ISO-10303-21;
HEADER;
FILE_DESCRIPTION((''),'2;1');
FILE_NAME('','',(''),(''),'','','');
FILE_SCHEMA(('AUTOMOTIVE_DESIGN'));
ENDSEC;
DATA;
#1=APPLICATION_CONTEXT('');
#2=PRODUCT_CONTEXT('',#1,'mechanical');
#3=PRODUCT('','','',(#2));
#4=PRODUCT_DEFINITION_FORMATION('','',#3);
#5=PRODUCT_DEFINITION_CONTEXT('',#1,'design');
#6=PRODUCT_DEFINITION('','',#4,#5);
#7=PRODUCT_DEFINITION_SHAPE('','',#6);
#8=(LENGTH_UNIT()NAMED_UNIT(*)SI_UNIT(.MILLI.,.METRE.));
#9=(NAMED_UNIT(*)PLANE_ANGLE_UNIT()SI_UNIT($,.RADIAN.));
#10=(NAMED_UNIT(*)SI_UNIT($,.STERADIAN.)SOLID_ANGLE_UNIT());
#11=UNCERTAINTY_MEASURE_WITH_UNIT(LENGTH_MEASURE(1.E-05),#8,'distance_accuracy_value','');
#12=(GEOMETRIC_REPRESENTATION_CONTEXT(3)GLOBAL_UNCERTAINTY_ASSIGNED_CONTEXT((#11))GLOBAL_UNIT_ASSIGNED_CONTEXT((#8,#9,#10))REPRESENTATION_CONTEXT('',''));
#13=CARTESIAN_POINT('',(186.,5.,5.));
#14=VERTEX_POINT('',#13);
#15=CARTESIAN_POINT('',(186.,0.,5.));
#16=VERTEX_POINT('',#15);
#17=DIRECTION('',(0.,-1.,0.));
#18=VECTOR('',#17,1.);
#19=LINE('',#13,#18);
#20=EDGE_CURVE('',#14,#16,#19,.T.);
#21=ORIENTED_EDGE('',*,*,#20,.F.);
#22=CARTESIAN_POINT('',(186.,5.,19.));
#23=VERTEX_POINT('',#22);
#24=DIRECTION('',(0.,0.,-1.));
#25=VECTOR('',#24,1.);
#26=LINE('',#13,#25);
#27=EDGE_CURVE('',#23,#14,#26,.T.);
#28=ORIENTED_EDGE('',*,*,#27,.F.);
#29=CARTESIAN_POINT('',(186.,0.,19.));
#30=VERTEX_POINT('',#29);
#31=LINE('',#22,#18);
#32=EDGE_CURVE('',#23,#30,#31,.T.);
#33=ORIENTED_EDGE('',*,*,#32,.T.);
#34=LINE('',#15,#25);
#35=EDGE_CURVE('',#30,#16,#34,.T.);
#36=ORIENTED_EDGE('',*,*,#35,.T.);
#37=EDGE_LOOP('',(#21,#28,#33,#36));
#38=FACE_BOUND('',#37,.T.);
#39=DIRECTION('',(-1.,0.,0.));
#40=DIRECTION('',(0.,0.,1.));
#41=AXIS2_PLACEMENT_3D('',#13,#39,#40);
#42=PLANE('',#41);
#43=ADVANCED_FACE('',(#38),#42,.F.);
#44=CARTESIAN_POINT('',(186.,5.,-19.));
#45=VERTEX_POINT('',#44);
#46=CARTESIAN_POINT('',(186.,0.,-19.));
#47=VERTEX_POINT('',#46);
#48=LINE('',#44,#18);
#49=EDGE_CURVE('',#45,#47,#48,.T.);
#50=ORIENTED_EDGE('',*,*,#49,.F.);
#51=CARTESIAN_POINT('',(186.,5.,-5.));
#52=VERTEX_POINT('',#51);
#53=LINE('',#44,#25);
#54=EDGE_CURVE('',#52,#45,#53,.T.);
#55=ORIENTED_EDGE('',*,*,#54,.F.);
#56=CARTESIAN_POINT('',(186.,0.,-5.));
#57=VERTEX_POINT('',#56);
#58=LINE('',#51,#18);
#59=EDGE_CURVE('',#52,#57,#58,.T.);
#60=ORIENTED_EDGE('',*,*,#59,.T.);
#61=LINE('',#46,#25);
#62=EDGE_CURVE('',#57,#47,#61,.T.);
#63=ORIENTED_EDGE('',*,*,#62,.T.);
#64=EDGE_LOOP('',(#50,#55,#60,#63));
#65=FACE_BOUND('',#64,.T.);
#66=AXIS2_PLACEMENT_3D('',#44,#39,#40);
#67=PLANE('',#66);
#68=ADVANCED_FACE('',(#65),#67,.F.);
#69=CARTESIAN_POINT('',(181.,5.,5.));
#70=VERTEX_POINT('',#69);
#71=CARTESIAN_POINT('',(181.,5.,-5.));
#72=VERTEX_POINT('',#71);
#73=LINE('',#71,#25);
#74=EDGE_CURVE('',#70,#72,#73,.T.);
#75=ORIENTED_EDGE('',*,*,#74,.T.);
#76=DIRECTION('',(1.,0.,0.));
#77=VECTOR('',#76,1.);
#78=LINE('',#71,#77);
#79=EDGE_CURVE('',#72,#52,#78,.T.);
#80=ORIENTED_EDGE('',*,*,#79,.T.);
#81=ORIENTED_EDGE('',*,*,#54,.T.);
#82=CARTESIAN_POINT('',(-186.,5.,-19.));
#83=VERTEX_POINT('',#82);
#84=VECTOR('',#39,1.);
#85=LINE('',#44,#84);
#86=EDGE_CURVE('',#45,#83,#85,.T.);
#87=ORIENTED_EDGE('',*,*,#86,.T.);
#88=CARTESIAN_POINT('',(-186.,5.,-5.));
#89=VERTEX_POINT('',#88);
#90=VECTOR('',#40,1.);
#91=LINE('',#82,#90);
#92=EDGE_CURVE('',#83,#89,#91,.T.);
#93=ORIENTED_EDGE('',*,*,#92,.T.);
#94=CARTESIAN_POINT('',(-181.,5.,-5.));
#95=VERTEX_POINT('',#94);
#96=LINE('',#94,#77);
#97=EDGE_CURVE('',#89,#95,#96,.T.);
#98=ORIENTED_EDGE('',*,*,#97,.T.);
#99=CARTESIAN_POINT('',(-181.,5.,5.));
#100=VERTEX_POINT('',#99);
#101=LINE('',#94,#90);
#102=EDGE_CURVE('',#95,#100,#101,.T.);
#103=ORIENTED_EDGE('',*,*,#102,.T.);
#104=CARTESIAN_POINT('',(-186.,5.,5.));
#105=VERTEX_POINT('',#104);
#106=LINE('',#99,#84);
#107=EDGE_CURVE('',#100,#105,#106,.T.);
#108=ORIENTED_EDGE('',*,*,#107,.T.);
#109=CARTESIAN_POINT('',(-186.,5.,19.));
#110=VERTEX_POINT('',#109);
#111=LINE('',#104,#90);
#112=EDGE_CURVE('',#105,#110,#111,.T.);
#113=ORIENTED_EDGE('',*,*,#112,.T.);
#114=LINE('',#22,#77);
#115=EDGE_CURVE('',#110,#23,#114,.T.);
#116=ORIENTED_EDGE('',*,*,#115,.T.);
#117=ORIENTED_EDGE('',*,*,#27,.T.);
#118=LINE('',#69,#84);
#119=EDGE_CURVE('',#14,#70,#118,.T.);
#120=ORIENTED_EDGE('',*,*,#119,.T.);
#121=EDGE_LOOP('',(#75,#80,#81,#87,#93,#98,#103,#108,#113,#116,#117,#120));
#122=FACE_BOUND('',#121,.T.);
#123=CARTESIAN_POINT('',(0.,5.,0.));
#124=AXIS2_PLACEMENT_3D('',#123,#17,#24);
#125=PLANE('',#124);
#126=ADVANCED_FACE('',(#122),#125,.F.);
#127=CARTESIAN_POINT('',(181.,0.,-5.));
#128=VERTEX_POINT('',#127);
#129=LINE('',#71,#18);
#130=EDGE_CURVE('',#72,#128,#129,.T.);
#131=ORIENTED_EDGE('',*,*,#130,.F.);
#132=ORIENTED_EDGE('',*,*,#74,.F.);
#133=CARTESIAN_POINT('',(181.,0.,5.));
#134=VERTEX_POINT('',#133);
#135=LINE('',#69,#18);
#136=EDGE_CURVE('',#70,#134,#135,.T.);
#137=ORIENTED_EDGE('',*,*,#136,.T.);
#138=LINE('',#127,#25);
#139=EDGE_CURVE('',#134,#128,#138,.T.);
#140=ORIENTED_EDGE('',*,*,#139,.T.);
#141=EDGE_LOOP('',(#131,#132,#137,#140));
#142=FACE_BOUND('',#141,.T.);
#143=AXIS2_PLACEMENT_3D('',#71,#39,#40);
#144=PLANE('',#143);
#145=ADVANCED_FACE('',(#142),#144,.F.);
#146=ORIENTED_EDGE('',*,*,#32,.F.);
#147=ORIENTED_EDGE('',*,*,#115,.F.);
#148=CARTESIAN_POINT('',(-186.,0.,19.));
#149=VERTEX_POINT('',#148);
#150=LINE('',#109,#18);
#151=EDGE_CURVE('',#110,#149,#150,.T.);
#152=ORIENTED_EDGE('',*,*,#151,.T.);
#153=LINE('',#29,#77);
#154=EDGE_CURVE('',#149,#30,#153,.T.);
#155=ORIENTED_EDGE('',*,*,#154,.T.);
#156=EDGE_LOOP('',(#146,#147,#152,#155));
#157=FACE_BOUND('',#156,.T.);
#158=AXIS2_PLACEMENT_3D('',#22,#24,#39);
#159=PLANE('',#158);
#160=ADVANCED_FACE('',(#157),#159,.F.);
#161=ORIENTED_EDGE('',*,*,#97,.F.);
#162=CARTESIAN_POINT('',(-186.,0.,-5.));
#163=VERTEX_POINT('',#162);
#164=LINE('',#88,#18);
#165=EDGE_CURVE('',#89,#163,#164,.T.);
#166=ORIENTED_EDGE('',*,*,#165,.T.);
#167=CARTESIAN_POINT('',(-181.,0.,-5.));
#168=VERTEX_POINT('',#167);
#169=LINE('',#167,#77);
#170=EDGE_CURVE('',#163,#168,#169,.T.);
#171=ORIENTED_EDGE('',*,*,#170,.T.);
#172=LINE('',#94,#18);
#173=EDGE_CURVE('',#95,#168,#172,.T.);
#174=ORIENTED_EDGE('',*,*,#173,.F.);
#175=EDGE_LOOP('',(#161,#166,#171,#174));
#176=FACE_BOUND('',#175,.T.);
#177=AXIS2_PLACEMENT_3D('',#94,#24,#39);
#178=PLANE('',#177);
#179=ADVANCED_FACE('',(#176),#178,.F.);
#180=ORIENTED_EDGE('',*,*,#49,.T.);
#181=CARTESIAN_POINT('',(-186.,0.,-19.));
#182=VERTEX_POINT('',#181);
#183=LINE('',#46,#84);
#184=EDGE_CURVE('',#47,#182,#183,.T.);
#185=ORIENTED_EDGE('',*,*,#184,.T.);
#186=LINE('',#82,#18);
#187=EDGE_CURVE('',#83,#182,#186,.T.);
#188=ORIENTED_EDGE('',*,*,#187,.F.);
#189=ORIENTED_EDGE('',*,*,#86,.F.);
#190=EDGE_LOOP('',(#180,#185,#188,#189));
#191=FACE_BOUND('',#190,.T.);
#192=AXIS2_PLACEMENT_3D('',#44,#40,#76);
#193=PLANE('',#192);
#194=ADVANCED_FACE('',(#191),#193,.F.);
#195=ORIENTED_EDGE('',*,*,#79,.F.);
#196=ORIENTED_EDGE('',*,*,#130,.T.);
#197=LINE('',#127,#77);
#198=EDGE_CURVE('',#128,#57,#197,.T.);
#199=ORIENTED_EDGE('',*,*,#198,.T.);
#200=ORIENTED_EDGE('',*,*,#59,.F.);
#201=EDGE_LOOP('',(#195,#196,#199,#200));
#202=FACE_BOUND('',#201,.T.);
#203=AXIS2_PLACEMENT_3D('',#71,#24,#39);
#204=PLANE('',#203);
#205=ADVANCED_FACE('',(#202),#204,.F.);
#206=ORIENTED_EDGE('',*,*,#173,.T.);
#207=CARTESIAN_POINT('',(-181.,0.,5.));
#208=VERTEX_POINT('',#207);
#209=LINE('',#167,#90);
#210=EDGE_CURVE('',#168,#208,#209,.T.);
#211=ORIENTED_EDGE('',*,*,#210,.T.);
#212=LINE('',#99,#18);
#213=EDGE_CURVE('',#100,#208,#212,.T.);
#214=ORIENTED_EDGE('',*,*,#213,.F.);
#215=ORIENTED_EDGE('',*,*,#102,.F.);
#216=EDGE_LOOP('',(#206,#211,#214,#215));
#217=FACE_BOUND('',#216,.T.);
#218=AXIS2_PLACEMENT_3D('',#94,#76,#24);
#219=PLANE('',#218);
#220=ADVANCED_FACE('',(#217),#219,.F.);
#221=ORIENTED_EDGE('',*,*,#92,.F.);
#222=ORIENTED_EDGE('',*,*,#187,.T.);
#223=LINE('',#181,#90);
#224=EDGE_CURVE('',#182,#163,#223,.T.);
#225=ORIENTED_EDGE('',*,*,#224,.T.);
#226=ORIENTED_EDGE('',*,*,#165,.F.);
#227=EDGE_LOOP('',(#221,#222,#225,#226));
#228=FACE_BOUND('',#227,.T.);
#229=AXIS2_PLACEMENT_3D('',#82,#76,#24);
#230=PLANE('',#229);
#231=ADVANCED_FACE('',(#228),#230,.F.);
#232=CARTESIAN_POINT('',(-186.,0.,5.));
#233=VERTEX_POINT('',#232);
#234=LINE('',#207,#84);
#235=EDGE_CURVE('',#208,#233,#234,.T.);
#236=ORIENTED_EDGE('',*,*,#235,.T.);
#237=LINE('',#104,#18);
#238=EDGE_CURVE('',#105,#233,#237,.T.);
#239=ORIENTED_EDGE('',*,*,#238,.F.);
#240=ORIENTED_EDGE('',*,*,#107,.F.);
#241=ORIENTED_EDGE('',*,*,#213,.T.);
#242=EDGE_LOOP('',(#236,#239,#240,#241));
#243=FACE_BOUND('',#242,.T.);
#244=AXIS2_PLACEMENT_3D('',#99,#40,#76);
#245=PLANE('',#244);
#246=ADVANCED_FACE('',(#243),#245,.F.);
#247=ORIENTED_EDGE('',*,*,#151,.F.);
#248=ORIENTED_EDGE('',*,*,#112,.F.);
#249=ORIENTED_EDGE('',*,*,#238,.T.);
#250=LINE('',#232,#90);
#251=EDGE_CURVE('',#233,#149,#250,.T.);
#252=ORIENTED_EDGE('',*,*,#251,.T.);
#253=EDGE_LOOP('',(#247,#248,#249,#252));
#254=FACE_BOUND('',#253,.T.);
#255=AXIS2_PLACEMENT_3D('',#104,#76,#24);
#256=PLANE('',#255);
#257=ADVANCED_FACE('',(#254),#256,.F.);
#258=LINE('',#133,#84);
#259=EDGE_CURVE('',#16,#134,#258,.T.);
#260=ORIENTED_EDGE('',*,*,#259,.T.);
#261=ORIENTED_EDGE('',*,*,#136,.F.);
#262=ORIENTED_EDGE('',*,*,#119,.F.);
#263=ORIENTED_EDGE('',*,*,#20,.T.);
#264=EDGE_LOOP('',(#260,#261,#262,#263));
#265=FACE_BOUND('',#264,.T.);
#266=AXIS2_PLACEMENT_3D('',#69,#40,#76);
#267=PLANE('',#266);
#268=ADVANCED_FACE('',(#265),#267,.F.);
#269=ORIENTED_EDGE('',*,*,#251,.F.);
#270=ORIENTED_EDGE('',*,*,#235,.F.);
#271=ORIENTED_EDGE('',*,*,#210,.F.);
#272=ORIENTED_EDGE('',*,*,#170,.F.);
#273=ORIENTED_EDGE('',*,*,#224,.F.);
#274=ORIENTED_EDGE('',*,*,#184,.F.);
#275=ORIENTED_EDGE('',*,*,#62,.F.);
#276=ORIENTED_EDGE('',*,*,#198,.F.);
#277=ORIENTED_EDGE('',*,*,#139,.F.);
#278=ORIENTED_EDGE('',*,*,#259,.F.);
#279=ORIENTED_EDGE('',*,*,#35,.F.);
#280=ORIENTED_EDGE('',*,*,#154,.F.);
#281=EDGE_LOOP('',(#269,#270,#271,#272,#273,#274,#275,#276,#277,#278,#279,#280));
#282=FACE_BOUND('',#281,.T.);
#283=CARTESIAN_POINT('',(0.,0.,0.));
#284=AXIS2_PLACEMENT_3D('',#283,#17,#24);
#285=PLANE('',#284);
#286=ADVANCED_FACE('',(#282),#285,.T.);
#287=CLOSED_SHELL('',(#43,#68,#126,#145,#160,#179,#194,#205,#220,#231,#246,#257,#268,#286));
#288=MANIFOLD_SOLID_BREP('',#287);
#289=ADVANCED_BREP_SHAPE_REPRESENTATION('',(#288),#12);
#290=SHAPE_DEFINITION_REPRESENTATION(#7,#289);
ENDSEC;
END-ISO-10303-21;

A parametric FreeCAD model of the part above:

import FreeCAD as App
import Part
import Sketcher
from FreeCAD import Vector


def add_polygon(sketch, points):
    """Adds a closed chain of lines whose ends are joined by coincident constraints."""
    first, n = sketch.GeometryCount, len(points)
    for a, b in zip(points, points[1:] + points[:1]):
        sketch.addGeometry(Part.LineSegment(App.Vector(*a, 0), App.Vector(*b, 0)), False)
    for i in range(n):
        sketch.addConstraint(Sketcher.Constraint("Coincident", first + i, 2, first + (i + 1) % n, 1))

doc = App.newDocument("Part")
params = doc.addObject("Spreadsheet::Sheet", "Params")
for row, (alias, value) in enumerate([
    ("sketch1_width", "372 mm"),
    ("sketch1_width2", "5 mm"),
    ("sketch1_height", "14 mm"),
    ("sketch1_height2", "10 mm"),
    ("pad1_length", "5 mm"),
], start=1):
    params.set(f"A{row}", alias)
    params.set(f"B{row}", "=" + value)
    params.setAlias(f"B{row}", alias)

body = doc.addObject("PartDesign::Body", "Body")

sketch1 = body.newObject("Sketcher::SketchObject", "Sketch")
sketch1.AttachmentSupport = (doc.getObject("XZ_Plane"), [""])
sketch1.MapMode = "FlatFace"
add_polygon(sketch1, [(186, -19), (-186, -19), (-186, -5), (-181, -5), (-181, 5), (-186, 5), (-186, 19), (186, 19), (186, 5), (181, 5), (181, -5), (186, -5)])
sketch1.addConstraint([
    Sketcher.Constraint("Horizontal", 0),
    Sketcher.Constraint("Vertical", 1),
    Sketcher.Constraint("Horizontal", 2),
    Sketcher.Constraint("Vertical", 3),
    Sketcher.Constraint("Horizontal", 4),
    Sketcher.Constraint("Vertical", 5),
    Sketcher.Constraint("Horizontal", 6),
    Sketcher.Constraint("Vertical", 7),
    Sketcher.Constraint("Horizontal", 8),
    Sketcher.Constraint("Vertical", 9),
    Sketcher.Constraint("Horizontal", 10),
    Sketcher.Constraint("Vertical", 11),
    Sketcher.Constraint("Symmetric", 0, 2, 6, 2, -1, 1),
    Sketcher.Constraint("Symmetric", 2, 2, 8, 2, -1, 1),
    Sketcher.Constraint("Symmetric", 4, 2, 10, 2, -1, 1),
    Sketcher.Constraint("Symmetric", 4, 2, 7, 2, -2),
    Sketcher.Constraint("DistanceX", 0, 2, 0, 1, 372.0),
    Sketcher.Constraint("DistanceX", 2, 1, 2, 2, 5.0),
    Sketcher.Constraint("DistanceY", 1, 1, 1, 2, 14.0),
    Sketcher.Constraint("DistanceY", 3, 1, 3, 2, 10.0),
])
sketch1.setExpression("Constraints[28]", "Params.sketch1_width")
sketch1.setExpression("Constraints[29]", "Params.sketch1_width2")
sketch1.setExpression("Constraints[30]", "Params.sketch1_height")
sketch1.setExpression("Constraints[31]", "Params.sketch1_height2")
pad1 = body.newObject("PartDesign::Pad", "Pad")
pad1.Profile = sketch1
pad1.setExpression("Length", "Params.pad1_length")
pad1.Reversed = True

doc.recompute()
